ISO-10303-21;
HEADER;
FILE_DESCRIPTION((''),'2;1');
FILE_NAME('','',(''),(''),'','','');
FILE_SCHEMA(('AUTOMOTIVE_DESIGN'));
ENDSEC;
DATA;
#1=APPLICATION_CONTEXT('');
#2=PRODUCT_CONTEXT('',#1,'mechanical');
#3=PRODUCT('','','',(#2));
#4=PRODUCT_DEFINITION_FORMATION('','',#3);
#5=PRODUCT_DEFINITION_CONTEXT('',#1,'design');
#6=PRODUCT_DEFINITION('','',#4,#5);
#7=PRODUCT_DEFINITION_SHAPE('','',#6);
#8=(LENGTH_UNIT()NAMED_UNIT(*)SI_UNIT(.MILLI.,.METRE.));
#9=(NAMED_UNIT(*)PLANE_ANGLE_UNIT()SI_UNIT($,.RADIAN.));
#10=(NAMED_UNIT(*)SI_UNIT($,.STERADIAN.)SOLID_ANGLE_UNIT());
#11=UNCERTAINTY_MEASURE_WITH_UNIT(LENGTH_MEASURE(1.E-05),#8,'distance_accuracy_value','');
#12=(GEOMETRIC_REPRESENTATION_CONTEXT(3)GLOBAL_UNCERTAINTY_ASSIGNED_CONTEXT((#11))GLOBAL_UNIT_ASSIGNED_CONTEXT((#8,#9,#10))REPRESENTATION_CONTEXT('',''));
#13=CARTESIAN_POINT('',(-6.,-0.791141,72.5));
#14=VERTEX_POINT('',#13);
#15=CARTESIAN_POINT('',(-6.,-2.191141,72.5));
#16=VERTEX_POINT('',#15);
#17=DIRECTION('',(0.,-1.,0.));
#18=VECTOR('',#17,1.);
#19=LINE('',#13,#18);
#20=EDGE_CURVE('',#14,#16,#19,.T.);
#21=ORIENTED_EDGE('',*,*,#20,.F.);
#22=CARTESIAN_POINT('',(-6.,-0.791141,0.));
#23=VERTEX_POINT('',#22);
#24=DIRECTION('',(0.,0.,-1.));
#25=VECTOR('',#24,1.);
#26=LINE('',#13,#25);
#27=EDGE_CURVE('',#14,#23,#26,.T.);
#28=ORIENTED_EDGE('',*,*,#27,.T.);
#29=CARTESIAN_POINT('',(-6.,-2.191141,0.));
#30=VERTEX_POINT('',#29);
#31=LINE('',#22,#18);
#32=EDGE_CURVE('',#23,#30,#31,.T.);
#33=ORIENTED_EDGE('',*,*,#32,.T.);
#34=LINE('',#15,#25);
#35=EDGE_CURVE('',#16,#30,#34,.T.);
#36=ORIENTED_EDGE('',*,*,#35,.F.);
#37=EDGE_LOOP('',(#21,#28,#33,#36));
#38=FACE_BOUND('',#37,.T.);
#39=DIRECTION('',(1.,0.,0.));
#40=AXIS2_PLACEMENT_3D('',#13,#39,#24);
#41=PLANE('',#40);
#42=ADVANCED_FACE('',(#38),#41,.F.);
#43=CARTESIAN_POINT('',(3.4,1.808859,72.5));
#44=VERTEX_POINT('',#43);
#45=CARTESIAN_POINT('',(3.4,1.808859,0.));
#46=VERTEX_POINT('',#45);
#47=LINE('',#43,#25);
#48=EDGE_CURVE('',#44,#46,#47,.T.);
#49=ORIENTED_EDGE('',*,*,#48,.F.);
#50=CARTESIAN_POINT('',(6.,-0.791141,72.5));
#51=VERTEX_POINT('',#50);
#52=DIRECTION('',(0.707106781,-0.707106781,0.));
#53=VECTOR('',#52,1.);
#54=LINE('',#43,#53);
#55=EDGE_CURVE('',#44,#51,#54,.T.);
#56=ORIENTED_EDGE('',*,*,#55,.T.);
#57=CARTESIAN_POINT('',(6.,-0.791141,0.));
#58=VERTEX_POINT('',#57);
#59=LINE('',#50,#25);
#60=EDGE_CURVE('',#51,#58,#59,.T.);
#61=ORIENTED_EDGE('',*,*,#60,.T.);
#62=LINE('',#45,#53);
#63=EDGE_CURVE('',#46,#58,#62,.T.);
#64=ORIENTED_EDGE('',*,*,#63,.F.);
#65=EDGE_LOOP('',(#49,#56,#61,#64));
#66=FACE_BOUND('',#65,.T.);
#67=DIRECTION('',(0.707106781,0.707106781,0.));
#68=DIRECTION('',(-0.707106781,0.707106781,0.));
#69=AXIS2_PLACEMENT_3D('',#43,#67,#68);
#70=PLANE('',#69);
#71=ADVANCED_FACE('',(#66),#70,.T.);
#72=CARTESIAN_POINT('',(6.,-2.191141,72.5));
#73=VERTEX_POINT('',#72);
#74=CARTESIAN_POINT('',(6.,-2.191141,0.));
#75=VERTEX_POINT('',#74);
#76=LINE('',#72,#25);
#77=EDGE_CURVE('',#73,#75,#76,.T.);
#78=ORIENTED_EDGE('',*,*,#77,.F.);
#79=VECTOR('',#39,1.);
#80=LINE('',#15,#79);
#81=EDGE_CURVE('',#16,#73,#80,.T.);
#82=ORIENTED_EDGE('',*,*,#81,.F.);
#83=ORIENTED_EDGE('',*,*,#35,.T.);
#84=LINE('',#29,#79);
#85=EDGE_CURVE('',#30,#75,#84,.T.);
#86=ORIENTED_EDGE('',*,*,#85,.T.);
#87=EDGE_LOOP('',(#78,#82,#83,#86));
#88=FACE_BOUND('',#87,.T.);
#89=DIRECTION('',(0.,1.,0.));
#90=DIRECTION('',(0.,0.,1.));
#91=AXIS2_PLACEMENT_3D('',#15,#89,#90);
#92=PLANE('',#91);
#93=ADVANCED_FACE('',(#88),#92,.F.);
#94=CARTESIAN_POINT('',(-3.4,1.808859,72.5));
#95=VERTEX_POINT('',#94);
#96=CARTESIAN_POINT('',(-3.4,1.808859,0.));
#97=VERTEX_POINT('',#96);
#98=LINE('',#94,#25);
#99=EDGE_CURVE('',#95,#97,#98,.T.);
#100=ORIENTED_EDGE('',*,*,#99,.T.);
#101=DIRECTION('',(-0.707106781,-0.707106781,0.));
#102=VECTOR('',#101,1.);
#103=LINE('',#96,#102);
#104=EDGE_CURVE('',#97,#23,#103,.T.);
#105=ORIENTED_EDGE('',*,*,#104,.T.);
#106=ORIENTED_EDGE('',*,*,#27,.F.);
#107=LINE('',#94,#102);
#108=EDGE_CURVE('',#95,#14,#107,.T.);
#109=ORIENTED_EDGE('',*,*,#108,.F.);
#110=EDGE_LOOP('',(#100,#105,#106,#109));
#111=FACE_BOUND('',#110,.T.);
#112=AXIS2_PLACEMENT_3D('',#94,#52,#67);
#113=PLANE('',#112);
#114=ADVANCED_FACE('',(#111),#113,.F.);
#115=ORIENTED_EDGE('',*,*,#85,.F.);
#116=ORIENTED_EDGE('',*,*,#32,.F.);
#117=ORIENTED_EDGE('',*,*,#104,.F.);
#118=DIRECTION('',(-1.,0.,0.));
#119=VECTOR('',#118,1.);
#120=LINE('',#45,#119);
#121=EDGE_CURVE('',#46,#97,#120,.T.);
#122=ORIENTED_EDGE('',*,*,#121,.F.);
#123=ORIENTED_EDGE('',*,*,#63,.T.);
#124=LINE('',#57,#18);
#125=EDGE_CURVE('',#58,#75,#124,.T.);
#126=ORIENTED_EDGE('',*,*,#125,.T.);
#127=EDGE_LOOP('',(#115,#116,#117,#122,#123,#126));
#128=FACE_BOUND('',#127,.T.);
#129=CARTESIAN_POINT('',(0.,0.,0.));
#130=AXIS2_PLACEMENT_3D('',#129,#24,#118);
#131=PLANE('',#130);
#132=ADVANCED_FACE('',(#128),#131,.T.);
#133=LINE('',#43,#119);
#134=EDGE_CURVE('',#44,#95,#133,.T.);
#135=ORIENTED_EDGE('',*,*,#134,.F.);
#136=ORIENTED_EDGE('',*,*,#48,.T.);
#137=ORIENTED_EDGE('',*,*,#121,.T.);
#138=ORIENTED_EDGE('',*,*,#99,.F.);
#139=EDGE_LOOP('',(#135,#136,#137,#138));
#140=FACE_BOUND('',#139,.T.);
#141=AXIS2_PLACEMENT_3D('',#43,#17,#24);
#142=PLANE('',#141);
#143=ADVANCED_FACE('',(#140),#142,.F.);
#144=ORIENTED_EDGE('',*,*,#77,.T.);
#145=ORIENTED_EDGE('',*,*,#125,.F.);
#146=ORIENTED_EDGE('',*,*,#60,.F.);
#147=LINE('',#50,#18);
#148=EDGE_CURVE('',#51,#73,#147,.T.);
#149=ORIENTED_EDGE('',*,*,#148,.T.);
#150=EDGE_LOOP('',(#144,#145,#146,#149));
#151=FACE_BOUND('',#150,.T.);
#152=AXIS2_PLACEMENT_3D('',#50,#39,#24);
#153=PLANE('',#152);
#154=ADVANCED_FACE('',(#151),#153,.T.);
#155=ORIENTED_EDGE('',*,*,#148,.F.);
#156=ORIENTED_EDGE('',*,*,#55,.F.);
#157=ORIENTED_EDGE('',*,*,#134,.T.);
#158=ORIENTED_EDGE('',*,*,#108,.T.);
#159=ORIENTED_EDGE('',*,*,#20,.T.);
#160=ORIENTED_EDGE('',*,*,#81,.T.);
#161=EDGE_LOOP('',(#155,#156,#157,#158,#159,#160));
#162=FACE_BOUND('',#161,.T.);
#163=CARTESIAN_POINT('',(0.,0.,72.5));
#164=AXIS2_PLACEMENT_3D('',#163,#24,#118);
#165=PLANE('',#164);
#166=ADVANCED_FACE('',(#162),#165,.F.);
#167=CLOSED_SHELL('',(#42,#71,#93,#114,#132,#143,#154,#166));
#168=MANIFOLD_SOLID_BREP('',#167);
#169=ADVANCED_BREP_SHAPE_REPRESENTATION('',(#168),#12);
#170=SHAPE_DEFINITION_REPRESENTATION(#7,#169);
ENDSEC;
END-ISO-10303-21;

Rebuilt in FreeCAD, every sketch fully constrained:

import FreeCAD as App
import Part
import Sketcher
Q = App.Units.Quantity

doc = App.newDocument("Part")
body = doc.addObject("PartDesign::Body", "Body")

# Sketch on XY plane
sketch1 = body.newObject("Sketcher::SketchObject", "Sketch")
sketch1.AttachmentSupport = (doc.getObject("XY_Plane"), [""])
sketch1.MapMode = "FlatFace"
sketch1.addGeometry(Part.LineSegment(App.Vector(3.4, 1.8, 0), App.Vector(-3.4, 1.8, 0)), False)
sketch1.addGeometry(Part.LineSegment(App.Vector(-3.4, 1.8, 0), App.Vector(-6, -0.8, 0)), False)
sketch1.addGeometry(Part.LineSegment(App.Vector(-6, -0.8, 0), App.Vector(-6, -2.2, 0)), False)
sketch1.addGeometry(Part.LineSegment(App.Vector(-6, -2.2, 0), App.Vector(6, -2.2, 0)), False)
sketch1.addGeometry(Part.LineSegment(App.Vector(6, -2.2, 0), App.Vector(6, -0.8, 0)), False)
sketch1.addGeometry(Part.LineSegment(App.Vector(6, -0.8, 0), App.Vector(3.4, 1.8, 0)), False)
sketch1.addConstraint(Sketcher.Constraint("Coincident", 0, 2, 1, 1))
sketch1.addConstraint(Sketcher.Constraint("Coincident", 1, 2, 2, 1))
sketch1.addConstraint(Sketcher.Constraint("Coincident", 2, 2, 3, 1))
sketch1.addConstraint(Sketcher.Constraint("Coincident", 3, 2, 4, 1))
sketch1.addConstraint(Sketcher.Constraint("Coincident", 4, 2, 5, 1))
sketch1.addConstraint(Sketcher.Constraint("Coincident", 5, 2, 0, 1))
sketch1.addConstraint(Sketcher.Constraint("Horizontal", 0))
sketch1.addConstraint(Sketcher.Constraint("Vertical", 2))
sketch1.addConstraint(Sketcher.Constraint("Horizontal", 3))
sketch1.addConstraint(Sketcher.Constraint("Vertical", 4))
sketch1.addConstraint(Sketcher.Constraint("Symmetric", 1, 2, 4, 2, -2))
sketch1.addConstraint(Sketcher.Constraint("Perpendicular", 1, 5))
sketch1.addConstraint(Sketcher.Constraint("Equal", 1, 5))
sketch1.addConstraint(Sketcher.Constraint("DistanceX", 3, 1, 3, 2, Q("12 mm")))
sketch1.addConstraint(Sketcher.Constraint("DistanceX", 0, 2, 0, 1, Q("6.8 mm")))
sketch1.addConstraint(Sketcher.Constraint("DistanceY", 2, 2, 2, 1, Q("1.4 mm")))
sketch1.addConstraint(Sketcher.Constraint("DistanceY", -1, 1, 0, 2, Q("1.808859 mm")))
pad1 = body.newObject("PartDesign::Pad", "Pad")
pad1.Profile = sketch1
pad1.Length = 72.5

doc.recompute()
